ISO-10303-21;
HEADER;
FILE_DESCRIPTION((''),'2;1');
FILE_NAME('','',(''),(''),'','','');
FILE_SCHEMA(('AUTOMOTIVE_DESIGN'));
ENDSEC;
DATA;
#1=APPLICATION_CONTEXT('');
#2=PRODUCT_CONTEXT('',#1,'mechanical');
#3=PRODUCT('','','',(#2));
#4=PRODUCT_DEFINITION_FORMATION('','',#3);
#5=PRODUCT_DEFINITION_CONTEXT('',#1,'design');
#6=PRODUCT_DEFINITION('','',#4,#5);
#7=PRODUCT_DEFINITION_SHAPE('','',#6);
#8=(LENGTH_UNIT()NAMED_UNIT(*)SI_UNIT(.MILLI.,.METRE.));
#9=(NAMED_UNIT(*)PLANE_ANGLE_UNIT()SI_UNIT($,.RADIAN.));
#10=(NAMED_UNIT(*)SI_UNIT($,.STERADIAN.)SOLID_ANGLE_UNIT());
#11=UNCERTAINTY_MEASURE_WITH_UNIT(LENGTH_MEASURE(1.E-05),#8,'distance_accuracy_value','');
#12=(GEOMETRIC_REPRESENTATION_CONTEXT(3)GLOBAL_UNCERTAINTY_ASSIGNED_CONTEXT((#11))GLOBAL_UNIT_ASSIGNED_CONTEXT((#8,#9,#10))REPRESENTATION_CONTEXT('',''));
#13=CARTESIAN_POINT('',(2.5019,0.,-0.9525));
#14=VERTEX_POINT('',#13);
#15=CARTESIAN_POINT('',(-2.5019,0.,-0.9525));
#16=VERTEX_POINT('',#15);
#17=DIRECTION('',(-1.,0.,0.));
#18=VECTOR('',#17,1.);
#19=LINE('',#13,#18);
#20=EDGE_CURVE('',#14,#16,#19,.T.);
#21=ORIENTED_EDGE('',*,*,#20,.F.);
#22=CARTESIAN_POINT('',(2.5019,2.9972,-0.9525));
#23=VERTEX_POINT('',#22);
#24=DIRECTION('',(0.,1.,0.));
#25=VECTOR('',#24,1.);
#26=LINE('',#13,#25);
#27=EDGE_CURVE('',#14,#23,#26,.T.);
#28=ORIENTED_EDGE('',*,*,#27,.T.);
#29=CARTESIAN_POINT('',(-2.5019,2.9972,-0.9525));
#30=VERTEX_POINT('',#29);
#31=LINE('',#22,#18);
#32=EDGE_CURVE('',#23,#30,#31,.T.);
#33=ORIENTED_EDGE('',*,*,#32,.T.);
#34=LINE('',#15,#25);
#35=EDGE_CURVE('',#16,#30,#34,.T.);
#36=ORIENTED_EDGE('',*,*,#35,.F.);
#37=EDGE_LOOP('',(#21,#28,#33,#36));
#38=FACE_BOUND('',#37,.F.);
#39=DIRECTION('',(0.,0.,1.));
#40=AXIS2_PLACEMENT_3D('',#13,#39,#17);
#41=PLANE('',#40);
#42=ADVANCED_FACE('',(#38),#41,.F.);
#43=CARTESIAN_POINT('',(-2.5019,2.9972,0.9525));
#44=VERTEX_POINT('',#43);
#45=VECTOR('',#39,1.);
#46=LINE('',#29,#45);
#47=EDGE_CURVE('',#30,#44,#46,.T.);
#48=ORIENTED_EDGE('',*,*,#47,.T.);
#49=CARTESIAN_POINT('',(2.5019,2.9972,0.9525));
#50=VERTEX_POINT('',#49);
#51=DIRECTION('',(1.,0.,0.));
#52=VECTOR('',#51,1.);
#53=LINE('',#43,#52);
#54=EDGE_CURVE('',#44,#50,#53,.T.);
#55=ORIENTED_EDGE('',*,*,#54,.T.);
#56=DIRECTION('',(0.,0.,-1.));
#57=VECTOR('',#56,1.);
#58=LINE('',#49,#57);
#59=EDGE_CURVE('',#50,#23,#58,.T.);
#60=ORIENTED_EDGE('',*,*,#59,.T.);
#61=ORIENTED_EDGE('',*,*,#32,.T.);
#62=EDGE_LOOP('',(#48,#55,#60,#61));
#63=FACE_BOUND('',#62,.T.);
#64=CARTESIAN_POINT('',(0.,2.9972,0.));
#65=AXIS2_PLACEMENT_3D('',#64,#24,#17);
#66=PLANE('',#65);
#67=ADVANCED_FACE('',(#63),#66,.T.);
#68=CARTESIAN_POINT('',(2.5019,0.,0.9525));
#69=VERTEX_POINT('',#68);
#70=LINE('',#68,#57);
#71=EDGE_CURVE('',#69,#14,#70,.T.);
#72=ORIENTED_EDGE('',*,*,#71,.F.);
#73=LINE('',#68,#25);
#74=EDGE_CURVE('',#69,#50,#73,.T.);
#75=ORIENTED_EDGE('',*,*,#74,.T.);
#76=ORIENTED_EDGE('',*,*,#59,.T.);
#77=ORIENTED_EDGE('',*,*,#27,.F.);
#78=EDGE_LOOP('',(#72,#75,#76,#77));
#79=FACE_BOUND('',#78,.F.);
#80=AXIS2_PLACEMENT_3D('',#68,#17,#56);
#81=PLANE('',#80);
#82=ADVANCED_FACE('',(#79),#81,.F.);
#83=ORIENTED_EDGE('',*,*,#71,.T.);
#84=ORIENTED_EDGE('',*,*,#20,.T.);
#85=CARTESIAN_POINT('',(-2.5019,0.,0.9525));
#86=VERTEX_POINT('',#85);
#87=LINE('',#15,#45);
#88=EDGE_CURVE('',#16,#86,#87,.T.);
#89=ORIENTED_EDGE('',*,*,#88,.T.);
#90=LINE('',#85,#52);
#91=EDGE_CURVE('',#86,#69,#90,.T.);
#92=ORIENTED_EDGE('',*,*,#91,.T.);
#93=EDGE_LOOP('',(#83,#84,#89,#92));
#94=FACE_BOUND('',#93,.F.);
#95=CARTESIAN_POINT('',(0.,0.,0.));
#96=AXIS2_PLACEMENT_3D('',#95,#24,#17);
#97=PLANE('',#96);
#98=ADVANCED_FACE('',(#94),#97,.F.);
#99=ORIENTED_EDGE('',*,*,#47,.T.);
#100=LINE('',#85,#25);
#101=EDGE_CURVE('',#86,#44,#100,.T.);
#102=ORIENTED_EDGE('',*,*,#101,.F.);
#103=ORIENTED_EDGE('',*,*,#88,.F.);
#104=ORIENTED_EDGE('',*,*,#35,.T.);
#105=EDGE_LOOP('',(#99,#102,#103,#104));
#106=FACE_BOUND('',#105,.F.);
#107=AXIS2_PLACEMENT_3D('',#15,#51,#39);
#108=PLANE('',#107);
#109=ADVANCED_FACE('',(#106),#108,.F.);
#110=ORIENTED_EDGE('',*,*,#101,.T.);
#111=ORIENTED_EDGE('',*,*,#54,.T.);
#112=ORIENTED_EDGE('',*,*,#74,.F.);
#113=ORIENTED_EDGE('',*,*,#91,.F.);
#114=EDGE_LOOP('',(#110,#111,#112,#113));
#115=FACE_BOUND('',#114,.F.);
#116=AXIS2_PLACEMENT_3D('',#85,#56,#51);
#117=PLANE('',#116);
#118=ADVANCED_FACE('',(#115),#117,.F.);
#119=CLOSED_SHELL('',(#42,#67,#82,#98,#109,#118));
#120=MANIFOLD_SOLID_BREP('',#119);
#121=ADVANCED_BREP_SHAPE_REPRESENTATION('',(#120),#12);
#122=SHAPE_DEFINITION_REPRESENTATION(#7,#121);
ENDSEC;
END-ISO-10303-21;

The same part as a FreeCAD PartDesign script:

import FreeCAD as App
import Part
import Sketcher

V = App.Vector
Q = App.Units.Quantity


def add_polygon(sketch, points):
    """Adds a closed chain of lines whose ends are joined by coincident constraints."""
    first, n = sketch.GeometryCount, len(points)
    for a, b in zip(points, points[1:] + points[:1]):
        sketch.addGeometry(Part.LineSegment(App.Vector(*a, 0), App.Vector(*b, 0)), False)
    for i in range(n):
        sketch.addConstraint(Sketcher.Constraint("Coincident", first + i, 2, first + (i + 1) % n, 1))

doc = App.newDocument("Part")
params = doc.addObject("Spreadsheet::Sheet", "Params")
for row, (alias, value) in enumerate([
    ("sketch1_width", "0.197 in"),
    ("sketch1_height", "0.075 in"),
    ("pad1_length", "0.118 in"),
], start=1):
    params.set(f"A{row}", alias)
    params.set(f"B{row}", "=" + value)
    params.setAlias(f"B{row}", alias)

body = doc.addObject("PartDesign::Body", "Body")

# Sketch on XZ plane
sketch1 = doc.addObject("Sketcher::SketchObject", "Sketch")
body.addObject(sketch1)
sketch1.AttachmentSupport = (doc.XZ_Plane, [""])
sketch1.MapMode = "FlatFace"
add_polygon(sketch1, [(2.5, -1), (-2.5, -1), (-2.5, 1), (2.5, 1)])  # lines 0-3
sketch1.addConstraint([
    Sketcher.Constraint("Horizontal", 0),
    Sketcher.Constraint("Vertical", 1),
    Sketcher.Constraint("Horizontal", 2),
    Sketcher.Constraint("Vertical", 3),
    Sketcher.Constraint("Symmetric", 0, 2, 2, 2, -1, 1),
    Sketcher.Constraint("DistanceX", 0, 2, 0, 1, Q("0.197 in")),
    Sketcher.Constraint("DistanceY", 1, 1, 1, 2, Q("0.075 in")),
])
sketch1.setExpression("Constraints[9]", "Params.sketch1_width")
sketch1.setExpression("Constraints[10]", "Params.sketch1_height")
pad1 = doc.addObject("PartDesign::Pad", "Pad")
body.addObject(pad1)
pad1.Profile = sketch1
pad1.setExpression("Length", "Params.pad1_length")
pad1.Reversed = True

doc.recompute()
